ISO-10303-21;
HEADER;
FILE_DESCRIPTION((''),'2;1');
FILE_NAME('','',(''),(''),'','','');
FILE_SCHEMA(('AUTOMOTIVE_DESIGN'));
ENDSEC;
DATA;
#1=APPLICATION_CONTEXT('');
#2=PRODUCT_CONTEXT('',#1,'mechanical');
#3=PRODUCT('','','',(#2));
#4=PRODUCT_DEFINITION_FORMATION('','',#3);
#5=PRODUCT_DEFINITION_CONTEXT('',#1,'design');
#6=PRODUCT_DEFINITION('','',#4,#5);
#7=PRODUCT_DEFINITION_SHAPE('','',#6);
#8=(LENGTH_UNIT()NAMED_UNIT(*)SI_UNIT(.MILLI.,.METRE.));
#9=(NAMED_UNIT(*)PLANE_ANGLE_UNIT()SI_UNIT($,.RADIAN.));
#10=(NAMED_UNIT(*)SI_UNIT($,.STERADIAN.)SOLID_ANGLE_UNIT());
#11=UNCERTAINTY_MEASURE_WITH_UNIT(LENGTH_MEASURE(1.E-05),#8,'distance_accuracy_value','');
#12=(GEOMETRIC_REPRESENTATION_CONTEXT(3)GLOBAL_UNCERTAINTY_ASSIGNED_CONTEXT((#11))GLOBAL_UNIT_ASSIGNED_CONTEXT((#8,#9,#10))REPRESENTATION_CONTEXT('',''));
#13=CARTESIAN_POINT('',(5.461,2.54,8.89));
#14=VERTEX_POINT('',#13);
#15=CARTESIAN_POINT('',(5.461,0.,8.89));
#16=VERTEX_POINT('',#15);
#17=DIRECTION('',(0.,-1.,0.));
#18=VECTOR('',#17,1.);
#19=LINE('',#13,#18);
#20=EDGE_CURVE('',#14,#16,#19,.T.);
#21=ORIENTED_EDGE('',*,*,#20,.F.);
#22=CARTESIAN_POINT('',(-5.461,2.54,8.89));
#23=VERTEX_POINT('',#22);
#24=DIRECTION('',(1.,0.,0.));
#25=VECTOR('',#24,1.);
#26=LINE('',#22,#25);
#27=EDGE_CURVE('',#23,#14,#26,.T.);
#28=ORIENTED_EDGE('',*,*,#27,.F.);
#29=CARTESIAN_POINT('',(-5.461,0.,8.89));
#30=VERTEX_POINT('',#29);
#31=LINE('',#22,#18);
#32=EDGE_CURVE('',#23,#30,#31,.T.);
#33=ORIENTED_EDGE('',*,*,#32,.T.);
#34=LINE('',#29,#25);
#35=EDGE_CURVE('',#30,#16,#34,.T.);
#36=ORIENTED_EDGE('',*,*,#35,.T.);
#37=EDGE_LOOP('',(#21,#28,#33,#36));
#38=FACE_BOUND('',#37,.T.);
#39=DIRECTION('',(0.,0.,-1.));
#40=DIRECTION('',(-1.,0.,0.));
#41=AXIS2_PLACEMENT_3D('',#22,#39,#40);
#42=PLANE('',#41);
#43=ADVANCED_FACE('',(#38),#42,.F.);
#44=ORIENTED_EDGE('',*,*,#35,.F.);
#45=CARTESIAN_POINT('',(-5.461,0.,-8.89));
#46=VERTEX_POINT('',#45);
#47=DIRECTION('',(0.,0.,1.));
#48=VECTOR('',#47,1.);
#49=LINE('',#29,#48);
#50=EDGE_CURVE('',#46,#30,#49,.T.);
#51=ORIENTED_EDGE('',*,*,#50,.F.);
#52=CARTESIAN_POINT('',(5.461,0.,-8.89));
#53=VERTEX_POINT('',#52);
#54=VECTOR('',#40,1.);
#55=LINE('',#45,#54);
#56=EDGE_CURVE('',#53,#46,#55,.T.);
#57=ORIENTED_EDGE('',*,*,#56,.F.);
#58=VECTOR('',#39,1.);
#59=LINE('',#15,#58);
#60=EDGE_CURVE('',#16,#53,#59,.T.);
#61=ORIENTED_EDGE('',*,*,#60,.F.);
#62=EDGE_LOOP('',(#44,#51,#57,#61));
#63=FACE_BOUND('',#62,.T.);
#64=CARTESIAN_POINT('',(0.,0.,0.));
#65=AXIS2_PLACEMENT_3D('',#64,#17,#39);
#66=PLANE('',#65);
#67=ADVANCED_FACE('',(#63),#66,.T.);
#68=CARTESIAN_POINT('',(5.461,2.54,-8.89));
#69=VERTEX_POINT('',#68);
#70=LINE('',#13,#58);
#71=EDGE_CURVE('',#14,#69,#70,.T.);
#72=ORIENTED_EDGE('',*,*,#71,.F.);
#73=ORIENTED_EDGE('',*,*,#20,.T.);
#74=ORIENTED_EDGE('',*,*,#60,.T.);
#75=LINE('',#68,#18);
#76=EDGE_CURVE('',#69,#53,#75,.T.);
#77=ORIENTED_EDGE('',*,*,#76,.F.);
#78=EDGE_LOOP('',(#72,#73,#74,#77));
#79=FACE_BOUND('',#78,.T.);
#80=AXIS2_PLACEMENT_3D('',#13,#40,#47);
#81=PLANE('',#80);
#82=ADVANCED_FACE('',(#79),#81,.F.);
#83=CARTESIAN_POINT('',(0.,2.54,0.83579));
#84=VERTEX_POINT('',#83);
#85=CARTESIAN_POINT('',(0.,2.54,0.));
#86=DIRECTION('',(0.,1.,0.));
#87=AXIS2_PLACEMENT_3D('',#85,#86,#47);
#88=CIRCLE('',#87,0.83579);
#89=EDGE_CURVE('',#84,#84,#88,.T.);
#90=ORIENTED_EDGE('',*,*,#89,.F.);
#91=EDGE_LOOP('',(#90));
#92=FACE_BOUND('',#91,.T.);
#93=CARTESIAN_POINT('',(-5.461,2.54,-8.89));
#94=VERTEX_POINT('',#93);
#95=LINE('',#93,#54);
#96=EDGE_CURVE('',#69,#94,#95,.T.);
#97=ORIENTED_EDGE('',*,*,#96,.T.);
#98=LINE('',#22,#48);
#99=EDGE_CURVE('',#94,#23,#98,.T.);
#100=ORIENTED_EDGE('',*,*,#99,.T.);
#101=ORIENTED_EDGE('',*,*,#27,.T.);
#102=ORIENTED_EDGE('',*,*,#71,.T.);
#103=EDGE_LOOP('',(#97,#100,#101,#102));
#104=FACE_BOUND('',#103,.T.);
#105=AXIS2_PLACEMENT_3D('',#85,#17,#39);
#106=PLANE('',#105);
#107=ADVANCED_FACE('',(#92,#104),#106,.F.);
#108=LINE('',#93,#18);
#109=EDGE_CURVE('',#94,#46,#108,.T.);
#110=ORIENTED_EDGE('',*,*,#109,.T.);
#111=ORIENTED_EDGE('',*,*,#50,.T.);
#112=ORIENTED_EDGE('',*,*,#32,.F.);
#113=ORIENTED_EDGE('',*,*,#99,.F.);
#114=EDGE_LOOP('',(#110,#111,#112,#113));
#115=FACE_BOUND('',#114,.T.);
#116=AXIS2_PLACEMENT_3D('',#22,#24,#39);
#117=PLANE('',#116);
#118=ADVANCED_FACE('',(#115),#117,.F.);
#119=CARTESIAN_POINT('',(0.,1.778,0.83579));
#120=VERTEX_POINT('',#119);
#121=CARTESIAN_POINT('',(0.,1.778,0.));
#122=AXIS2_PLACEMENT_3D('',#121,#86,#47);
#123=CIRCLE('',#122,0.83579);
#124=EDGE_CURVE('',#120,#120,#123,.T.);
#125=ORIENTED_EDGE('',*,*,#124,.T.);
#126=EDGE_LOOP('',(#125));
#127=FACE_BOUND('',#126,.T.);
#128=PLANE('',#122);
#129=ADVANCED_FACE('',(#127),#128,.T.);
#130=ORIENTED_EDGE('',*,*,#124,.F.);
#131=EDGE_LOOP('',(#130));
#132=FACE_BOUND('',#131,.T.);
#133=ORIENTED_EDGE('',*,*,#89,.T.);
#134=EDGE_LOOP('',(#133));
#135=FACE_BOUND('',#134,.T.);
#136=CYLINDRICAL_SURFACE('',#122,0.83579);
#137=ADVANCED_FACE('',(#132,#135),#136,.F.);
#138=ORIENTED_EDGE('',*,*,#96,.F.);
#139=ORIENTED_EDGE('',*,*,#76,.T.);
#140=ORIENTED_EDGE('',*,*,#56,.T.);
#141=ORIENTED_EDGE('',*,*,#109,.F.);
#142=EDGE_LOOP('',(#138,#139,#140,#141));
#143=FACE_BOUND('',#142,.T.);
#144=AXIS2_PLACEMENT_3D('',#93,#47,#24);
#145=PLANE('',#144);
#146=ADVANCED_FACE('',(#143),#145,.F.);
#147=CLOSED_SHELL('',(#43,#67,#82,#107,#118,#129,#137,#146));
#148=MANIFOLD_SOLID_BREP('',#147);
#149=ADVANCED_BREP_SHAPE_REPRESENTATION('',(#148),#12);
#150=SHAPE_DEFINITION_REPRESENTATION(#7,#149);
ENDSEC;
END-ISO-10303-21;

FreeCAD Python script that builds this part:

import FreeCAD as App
import Part
import Sketcher
from FreeCAD import Vector
Q = App.Units.Quantity

doc = App.newDocument("Part")
body = doc.addObject("PartDesign::Body", "Body")

# Sketch on XZ plane
sketch1 = doc.addObject("Sketcher::SketchObject", "Sketch")
body.addObject(sketch1)
sketch1.AttachmentSupport = (doc.XZ_Plane, [""])
sketch1.MapMode = "FlatFace"
sketch1.addGeometry([
    Part.LineSegment(Vector(-5.461, -8.89, 0), Vector(-5.461, 8.89, 0)),
    Part.LineSegment(Vector(-5.461, 8.89, 0), Vector(5.461, 8.89, 0)),
    Part.LineSegment(Vector(5.461, 8.89, 0), Vector(5.461, -8.89, 0)),
    Part.LineSegment(Vector(5.461, -8.89, 0), Vector(-5.461, -8.89, 0)),
], False)
sketch1.addConstraint([
    Sketcher.Constraint("Coincident", 0, 2, 1, 1),
    Sketcher.Constraint("Coincident", 1, 2, 2, 1),
    Sketcher.Constraint("Coincident", 2, 2, 3, 1),
    Sketcher.Constraint("Coincident", 3, 2, 0, 1),
    Sketcher.Constraint("Vertical", 0),
    Sketcher.Constraint("Horizontal", 1),
    Sketcher.Constraint("Vertical", 2),
    Sketcher.Constraint("Horizontal", 3),
    Sketcher.Constraint("Symmetric", 0, 2, 2, 2, -1, 1),
    Sketcher.Constraint("DistanceY", 0, 1, 0, 2, Q("0.7 in")),
    Sketcher.Constraint("DistanceX", 1, 1, 1, 2, Q("0.43 in")),
])
pad1 = doc.addObject("PartDesign::Pad", "Pad")
body.addObject(pad1)
pad1.Profile = sketch1
pad1.Length = Q("0.1 in")
pad1.Reversed = True

# Sketch on XZ plane
sketch2 = doc.addObject("Sketcher::SketchObject", "Sketch001")
body.addObject(sketch2)
sketch2.AttachmentSupport = (doc.XZ_Plane, [""])
sketch2.MapMode = "FlatFace"
sketch2.AttachmentOffset = App.Placement(Vector(0, 0, -0.1 * 25.4), App.Rotation())
sketch2.addGeometry(Part.Circle(Vector(0, 0, 0), Vector(0, 0, 1), 0.83579), False)
sketch2.addConstraint([
    Sketcher.Constraint("Coincident", 0, 3, -1, 1),
    Sketcher.Constraint("Diameter", 0, 1.67158),
])
pocket1 = doc.addObject("PartDesign::Pocket", "Pocket")
body.addObject(pocket1)
pocket1.Profile = sketch2
pocket1.Length = Q("0.03 in")
pocket1.Reversed = True

doc.recompute()
